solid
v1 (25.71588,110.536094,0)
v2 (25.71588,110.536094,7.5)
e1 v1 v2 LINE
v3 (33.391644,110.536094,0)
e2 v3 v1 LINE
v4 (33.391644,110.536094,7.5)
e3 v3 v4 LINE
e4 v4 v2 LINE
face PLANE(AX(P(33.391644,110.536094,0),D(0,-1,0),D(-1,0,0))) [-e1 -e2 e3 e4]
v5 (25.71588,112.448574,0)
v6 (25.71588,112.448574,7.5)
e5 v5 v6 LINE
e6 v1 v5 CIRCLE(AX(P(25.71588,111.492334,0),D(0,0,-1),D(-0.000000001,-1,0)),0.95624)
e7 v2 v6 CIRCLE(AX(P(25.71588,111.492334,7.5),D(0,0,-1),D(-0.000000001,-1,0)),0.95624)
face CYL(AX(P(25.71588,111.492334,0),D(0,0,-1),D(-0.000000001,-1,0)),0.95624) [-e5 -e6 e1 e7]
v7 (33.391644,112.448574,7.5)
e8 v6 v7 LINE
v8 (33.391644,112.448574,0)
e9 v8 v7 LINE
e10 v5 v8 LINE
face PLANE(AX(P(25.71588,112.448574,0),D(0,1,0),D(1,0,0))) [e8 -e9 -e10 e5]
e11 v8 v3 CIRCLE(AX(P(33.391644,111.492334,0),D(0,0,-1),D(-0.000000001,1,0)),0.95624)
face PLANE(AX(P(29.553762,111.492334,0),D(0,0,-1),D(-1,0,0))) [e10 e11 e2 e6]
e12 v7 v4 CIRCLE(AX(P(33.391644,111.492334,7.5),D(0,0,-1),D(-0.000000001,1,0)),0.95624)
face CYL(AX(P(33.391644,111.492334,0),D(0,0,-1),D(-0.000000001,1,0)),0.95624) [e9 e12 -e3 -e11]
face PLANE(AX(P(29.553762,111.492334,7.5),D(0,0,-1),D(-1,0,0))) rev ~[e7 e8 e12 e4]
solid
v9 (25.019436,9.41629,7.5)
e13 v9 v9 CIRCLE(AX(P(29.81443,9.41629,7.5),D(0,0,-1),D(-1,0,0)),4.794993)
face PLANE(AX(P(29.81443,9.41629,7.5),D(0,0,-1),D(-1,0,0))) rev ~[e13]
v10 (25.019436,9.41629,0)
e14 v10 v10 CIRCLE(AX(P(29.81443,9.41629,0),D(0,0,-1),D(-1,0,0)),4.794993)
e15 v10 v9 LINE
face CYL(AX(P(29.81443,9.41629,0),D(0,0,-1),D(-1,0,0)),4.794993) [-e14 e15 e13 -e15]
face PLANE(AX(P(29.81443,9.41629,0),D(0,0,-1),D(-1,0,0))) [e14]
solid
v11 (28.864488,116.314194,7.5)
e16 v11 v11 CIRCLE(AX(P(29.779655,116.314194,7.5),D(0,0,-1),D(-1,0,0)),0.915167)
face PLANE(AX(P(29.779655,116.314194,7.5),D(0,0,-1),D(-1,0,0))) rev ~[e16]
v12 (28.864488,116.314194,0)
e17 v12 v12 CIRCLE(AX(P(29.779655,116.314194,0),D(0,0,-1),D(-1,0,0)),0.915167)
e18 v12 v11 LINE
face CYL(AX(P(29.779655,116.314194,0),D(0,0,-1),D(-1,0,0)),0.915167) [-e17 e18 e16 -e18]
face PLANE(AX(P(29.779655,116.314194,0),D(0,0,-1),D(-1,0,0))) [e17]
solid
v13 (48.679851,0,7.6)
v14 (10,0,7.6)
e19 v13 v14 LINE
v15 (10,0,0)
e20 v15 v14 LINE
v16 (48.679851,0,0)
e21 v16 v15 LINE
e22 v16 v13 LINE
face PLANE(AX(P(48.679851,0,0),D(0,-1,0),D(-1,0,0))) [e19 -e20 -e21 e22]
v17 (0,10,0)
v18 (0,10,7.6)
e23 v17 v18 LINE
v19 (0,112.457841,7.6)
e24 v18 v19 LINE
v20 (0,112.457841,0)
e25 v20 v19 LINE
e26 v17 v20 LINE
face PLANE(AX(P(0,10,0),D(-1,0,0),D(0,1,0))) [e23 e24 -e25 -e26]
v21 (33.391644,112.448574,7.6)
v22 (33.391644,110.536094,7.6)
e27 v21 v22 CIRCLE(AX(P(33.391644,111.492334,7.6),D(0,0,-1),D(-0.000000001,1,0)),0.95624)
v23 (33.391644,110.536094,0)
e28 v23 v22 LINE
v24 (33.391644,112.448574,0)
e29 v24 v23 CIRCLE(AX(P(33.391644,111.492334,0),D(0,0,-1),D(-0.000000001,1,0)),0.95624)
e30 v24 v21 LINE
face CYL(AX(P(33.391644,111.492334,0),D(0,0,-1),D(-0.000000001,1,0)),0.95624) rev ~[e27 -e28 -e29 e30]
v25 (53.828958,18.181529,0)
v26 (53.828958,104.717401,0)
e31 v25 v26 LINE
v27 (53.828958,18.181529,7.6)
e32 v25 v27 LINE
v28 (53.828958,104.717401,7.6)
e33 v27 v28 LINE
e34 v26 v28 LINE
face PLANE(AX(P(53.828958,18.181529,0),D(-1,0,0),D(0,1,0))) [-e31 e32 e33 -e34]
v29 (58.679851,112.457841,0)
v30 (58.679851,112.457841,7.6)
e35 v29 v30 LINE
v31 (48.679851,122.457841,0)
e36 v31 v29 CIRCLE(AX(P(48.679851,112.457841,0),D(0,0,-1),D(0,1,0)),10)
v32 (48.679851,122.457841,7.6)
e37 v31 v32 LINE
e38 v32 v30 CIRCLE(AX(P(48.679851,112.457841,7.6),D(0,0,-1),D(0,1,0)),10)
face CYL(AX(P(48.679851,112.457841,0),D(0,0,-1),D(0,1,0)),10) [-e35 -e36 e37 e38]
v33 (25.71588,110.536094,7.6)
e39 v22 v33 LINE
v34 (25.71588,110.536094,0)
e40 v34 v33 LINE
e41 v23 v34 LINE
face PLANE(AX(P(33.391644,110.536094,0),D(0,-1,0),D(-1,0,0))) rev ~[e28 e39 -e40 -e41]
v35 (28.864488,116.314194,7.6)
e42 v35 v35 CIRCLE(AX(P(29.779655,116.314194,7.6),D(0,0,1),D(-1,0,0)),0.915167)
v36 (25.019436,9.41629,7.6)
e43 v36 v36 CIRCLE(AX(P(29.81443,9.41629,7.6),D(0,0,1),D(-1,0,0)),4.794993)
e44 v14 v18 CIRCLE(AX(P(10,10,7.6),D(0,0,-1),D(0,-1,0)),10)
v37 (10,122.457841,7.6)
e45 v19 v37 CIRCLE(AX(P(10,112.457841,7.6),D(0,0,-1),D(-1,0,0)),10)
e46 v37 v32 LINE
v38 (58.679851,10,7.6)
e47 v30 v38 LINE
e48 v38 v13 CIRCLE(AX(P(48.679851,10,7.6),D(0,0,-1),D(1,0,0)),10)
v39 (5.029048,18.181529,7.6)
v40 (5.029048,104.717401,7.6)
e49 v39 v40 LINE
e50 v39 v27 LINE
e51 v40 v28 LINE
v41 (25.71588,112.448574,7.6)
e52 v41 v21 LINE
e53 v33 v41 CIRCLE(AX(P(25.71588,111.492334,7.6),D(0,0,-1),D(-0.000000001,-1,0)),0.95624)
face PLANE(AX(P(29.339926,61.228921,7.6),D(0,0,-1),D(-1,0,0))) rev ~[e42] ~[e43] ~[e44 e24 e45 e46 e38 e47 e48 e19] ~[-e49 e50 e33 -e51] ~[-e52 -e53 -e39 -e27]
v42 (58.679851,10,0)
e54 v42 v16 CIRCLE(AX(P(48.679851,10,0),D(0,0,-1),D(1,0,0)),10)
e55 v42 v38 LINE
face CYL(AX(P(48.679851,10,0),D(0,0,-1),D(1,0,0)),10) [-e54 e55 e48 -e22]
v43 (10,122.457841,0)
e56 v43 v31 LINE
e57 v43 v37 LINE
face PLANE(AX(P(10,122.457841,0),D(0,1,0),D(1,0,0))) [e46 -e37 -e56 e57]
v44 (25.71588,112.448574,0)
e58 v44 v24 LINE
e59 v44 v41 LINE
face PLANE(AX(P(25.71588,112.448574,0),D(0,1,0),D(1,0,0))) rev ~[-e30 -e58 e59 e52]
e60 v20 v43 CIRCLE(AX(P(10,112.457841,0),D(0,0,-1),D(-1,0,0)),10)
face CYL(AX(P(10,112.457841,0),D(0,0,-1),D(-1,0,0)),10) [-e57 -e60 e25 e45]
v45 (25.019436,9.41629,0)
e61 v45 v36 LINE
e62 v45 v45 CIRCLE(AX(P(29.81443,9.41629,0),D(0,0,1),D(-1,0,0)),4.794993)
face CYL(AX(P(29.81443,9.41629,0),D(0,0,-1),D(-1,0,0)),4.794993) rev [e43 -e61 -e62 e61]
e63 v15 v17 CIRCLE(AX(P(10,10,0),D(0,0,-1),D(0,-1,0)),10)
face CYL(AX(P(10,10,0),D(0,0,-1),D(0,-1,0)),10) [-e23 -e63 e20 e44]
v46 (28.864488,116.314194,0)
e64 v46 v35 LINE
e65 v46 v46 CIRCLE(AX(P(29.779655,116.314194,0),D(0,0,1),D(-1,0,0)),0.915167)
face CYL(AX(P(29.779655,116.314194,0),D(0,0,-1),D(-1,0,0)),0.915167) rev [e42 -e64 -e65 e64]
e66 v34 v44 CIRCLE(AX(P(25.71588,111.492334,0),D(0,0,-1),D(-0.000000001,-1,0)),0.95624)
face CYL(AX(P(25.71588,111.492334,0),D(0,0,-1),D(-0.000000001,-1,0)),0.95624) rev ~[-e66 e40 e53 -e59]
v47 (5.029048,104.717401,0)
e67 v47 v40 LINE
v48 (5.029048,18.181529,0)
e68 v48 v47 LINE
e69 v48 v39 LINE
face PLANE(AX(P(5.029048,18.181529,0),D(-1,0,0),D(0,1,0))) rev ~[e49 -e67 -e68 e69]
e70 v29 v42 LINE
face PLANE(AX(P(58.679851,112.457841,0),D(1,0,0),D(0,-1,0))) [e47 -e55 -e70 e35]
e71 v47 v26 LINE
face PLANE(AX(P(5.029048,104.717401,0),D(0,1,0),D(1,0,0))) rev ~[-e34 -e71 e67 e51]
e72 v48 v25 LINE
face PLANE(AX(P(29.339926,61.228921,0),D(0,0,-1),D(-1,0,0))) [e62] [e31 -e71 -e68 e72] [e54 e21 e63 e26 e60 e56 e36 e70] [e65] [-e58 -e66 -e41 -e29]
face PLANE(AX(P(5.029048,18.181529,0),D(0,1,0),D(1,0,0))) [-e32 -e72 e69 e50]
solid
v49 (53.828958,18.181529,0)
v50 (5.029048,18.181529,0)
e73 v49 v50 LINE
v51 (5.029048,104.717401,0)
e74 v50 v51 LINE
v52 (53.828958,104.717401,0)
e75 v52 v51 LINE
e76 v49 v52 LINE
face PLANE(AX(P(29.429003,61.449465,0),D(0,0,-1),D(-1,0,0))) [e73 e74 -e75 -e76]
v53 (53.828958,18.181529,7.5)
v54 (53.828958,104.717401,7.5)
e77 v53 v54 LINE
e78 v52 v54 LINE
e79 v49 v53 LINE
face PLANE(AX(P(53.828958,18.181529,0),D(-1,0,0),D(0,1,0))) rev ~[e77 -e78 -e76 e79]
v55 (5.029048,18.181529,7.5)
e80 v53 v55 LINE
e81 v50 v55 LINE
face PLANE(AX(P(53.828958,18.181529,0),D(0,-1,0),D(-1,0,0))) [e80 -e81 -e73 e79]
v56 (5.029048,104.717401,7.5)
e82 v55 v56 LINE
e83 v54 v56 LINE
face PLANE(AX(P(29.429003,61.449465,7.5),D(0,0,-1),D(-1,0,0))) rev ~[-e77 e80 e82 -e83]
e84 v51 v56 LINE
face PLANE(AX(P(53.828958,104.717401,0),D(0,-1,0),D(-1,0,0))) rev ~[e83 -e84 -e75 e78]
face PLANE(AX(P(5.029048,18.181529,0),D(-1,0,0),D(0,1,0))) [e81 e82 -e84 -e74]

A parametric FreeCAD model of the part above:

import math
import FreeCAD as App
import Part
import Sketcher
Q = App.Units.Quantity


def add_polygon(sketch, points):
    """Adds a closed chain of lines whose ends are joined by coincident constraints."""
    first, n = sketch.GeometryCount, len(points)
    for a, b in zip(points, points[1:] + points[:1]):
        sketch.addGeometry(Part.LineSegment(App.Vector(*a, 0), App.Vector(*b, 0)), False)
    for i in range(n):
        sketch.addConstraint(Sketcher.Constraint("Coincident", first + i, 2, first + (i + 1) % n, 1))

doc = App.newDocument("Part")
params = doc.addObject("Spreadsheet::Sheet", "Params")
for row, (alias, value) in enumerate([
    ("sketch1_radius", "10 mm"),
    ("pad1_length", "7.6 mm"),
    ("pad2_length", "7.5 mm"),
    ("pad3_length", "7.5 mm"),
    ("pad4_length", "7.5 mm"),
    ("pad5_length", "7.5 mm"),
], start=1):
    params.set(f"A{row}", alias)
    params.set(f"B{row}", "=" + value)
    params.setAlias(f"B{row}", alias)

body = doc.addObject("PartDesign::Body", "Body")

sketch1 = body.newObject("Sketcher::SketchObject", "Sketch")
sketch1.AttachmentSupport = (doc.getObject("XY_Plane"), [""])
sketch1.MapMode = "FlatFace"
sketch1.addGeometry(Part.LineSegment(App.Vector(48.679851, 122.457841, 0), App.Vector(10, 122.457841, 0)), False)
sketch1.addGeometry(Part.ArcOfCircle(Part.Circle(App.Vector(10, 112.457841, 0), App.Vector(0, 0, 1), 10), math.radians(90), math.radians(180)), False)
sketch1.addGeometry(Part.LineSegment(App.Vector(0, 112.457841, 0), App.Vector(0, 10, 0)), False)
sketch1.addGeometry(Part.ArcOfCircle(Part.Circle(App.Vector(10, 10, 0), App.Vector(0, 0, 1), 10), math.radians(180), math.radians(270)), False)
sketch1.addGeometry(Part.LineSegment(App.Vector(10, 0, 0), App.Vector(48.679851, 0, 0)), False)
sketch1.addGeometry(Part.ArcOfCircle(Part.Circle(App.Vector(48.679851, 10, 0), App.Vector(0, 0, 1), 10), math.radians(-90), math.radians(0)), False)
sketch1.addGeometry(Part.LineSegment(App.Vector(58.679851, 10, 0), App.Vector(58.679851, 112.457841, 0)), False)
sketch1.addGeometry(Part.ArcOfCircle(Part.Circle(App.Vector(48.679851, 112.457841, 0), App.Vector(0, 0, 1), 10), math.radians(0), math.radians(90)), False)
sketch1.addGeometry(Part.Circle(App.Vector(29.81443, 9.41629, 0), App.Vector(0, 0, 1), 4.794993), False)
sketch1.addGeometry(Part.LineSegment(App.Vector(25.71588, 112.448574, 0), App.Vector(33.391644, 112.448574, 0)), False)
sketch1.addGeometry(Part.ArcOfCircle(Part.Circle(App.Vector(33.391644, 111.492334, 0), App.Vector(0, 0, 1), 0.95624), math.radians(-90), math.radians(90)), False)
sketch1.addGeometry(Part.LineSegment(App.Vector(33.391644, 110.536094, 0), App.Vector(25.71588, 110.536094, 0)), False)
sketch1.addGeometry(Part.ArcOfCircle(Part.Circle(App.Vector(25.71588, 111.492334, 0), App.Vector(0, 0, 1), 0.95624), math.radians(90), math.radians(270)), False)
sketch1.addGeometry(Part.Circle(App.Vector(29.779655, 116.314194, 0), App.Vector(0, 0, 1), 0.915167), False)
add_polygon(sketch1, [(5.029048, 18.181529), (5.029048, 104.717401), (53.828958, 104.717401), (53.828958, 18.181529)])
sketch1.addConstraint([
    Sketcher.Constraint("Tangent", 0, 2, 1, 1),
    Sketcher.Constraint("Tangent", 1, 2, 2, 1),
    Sketcher.Constraint("Tangent", 2, 2, 3, 1),
    Sketcher.Constraint("Tangent", 3, 2, 4, 1),
    Sketcher.Constraint("Tangent", 4, 2, 5, 1),
    Sketcher.Constraint("Tangent", 5, 2, 6, 1),
    Sketcher.Constraint("Tangent", 6, 2, 7, 1),
    Sketcher.Constraint("Tangent", 7, 2, 0, 1),
    Sketcher.Constraint("Tangent", 9, 2, 10, 2),
    Sketcher.Constraint("Tangent", 10, 1, 11, 1),
    Sketcher.Constraint("Tangent", 11, 2, 12, 2),
    Sketcher.Constraint("Tangent", 12, 1, 9, 1),
    Sketcher.Constraint("Horizontal", 0),
    Sketcher.Constraint("Vertical", 2),
    Sketcher.Constraint("Horizontal", 4),
    Sketcher.Constraint("Vertical", 6),
    Sketcher.Constraint("Horizontal", 9),
    Sketcher.Constraint("Horizontal", 11),
    Sketcher.Constraint("Vertical", 14),
    Sketcher.Constraint("Horizontal", 15),
    Sketcher.Constraint("Vertical", 16),
    Sketcher.Constraint("Horizontal", 17),
    Sketcher.Constraint("Equal", 1, 3),
    Sketcher.Constraint("Equal", 3, 5),
    Sketcher.Constraint("Equal", 5, 7),
    Sketcher.Constraint("PointOnObject", 1, 2, -2),
    Sketcher.Constraint("PointOnObject", 3, 2, -1),
    Sketcher.Constraint("Radius", 1, Q("10 mm")),
    Sketcher.Constraint("Radius", 10, Q("0.95624 mm")),
    Sketcher.Constraint("Diameter", 8, Q("9.589987 mm")),
    Sketcher.Constraint("Diameter", 13, Q("1.830334 mm")),
    Sketcher.Constraint("DistanceX", 0, 2, 0, 1, Q("38.679851 mm")),
    Sketcher.Constraint("DistanceX", 15, 1, 15, 2, Q("48.79991 mm")),
    Sketcher.Constraint("DistanceY", 2, 2, 2, 1, Q("102.457841 mm")),
    Sketcher.Constraint("DistanceY", 14, 1, 14, 2, Q("86.535872 mm")),
    Sketcher.Constraint("DistanceY", -1, 1, 14, 2, Q("104.717401 mm")),
    Sketcher.Constraint("DistanceY", 10, 1, 13, 3, Q("5.7781 mm")),
    Sketcher.Constraint("DistanceX", 9, 1, 9, 2, Q("7.675764 mm")),
    Sketcher.Constraint("DistanceX", -1, 1, 8, 3, Q("29.81443 mm")),
    Sketcher.Constraint("DistanceY", -1, 1, 8, 3, Q("9.41629 mm")),
    Sketcher.Constraint("DistanceX", -1, 1, 12, 3, Q("25.71588 mm")),
    Sketcher.Constraint("DistanceX", -1, 1, 14, 2, Q("5.029048 mm")),
    Sketcher.Constraint("DistanceX", 13, 3, 10, 3, Q("3.611989 mm")),
    Sketcher.Constraint("DistanceY", -1, 1, 10, 3, Q("111.492334 mm")),
])
sketch1.setExpression("Constraints[31]", "Params.sketch1_radius")
pad1 = body.newObject("PartDesign::Pad", "Pad")
pad1.Profile = sketch1
pad1.setExpression("Length", "Params.pad1_length")
body2 = doc.addObject("PartDesign::Body", "Body001")

sketch2 = body2.newObject("Sketcher::SketchObject", "Sketch001")
sketch2.AttachmentSupport = (doc.getObject("XY_Plane001"), [""])
sketch2.MapMode = "FlatFace"
sketch2.addGeometry(Part.Circle(App.Vector(29.779655, 116.314194, 0), App.Vector(0, 0, 1), 0.915167), False)
sketch2.addConstraint([
    Sketcher.Constraint("Diameter", 0, Q("1.830334 mm")),
    Sketcher.Constraint("DistanceX", -1, 1, 0, 3, Q("29.779655 mm")),
    Sketcher.Constraint("DistanceY", -1, 1, 0, 3, Q("116.314194 mm")),
])
pad2 = body2.newObject("PartDesign::Pad", "Pad001")
pad2.Profile = sketch2
pad2.setExpression("Length", "Params.pad2_length")
body3 = doc.addObject("PartDesign::Body", "Body002")

sketch3 = body3.newObject("Sketcher::SketchObject", "Sketch002")
sketch3.AttachmentSupport = (doc.getObject("XY_Plane002"), [""])
sketch3.MapMode = "FlatFace"
sketch3.addGeometry(Part.Circle(App.Vector(29.81443, 9.41629, 0), App.Vector(0, 0, 1), 4.794993), False)
sketch3.addConstraint([
    Sketcher.Constraint("Diameter", 0, Q("9.589987 mm")),
    Sketcher.Constraint("DistanceX", -1, 1, 0, 3, Q("29.81443 mm")),
    Sketcher.Constraint("DistanceY", -1, 1, 0, 3, Q("9.41629 mm")),
])
pad3 = body3.newObject("PartDesign::Pad", "Pad002")
pad3.Profile = sketch3
pad3.setExpression("Length", "Params.pad3_length")
body4 = doc.addObject("PartDesign::Body", "Body003")

sketch4 = body4.newObject("Sketcher::SketchObject", "Sketch003")
sketch4.AttachmentSupport = (doc.getObject("XY_Plane003"), [""])
sketch4.MapMode = "FlatFace"
sketch4.addGeometry([
    Part.LineSegment(App.Vector(25.71588, 112.448574, 0), App.Vector(33.391644, 112.448574, 0)),
    Part.ArcOfCircle(Part.Circle(App.Vector(33.391644, 111.492334, 0), App.Vector(0, 0, 1), 0.95624), math.radians(-90), math.radians(90)),
    Part.LineSegment(App.Vector(33.391644, 110.536094, 0), App.Vector(25.71588, 110.536094, 0)),
    Part.ArcOfCircle(Part.Circle(App.Vector(25.71588, 111.492334, 0), App.Vector(0, 0, 1), 0.95624), math.radians(90), math.radians(270)),
], False)
sketch4.addConstraint([
    Sketcher.Constraint("Tangent", 0, 2, 1, 2),
    Sketcher.Constraint("Tangent", 1, 1, 2, 1),
    Sketcher.Constraint("Tangent", 2, 2, 3, 2),
    Sketcher.Constraint("Tangent", 3, 1, 0, 1),
    Sketcher.Constraint("Horizontal", 0),
    Sketcher.Constraint("Horizontal", 2),
    Sketcher.Constraint("Radius", 1, Q("0.95624 mm")),
    Sketcher.Constraint("DistanceX", 0, 1, 0, 2, Q("7.675764 mm")),
    Sketcher.Constraint("DistanceX", -1, 1, 3, 3, Q("25.71588 mm")),
    Sketcher.Constraint("DistanceY", -1, 1, 1, 3, Q("111.492334 mm")),
])
pad4 = body4.newObject("PartDesign::Pad", "Pad003")
pad4.Profile = sketch4
pad4.setExpression("Length", "Params.pad4_length")
body5 = doc.addObject("PartDesign::Body", "Body004")

sketch5 = body5.newObject("Sketcher::SketchObject", "Sketch004")
sketch5.AttachmentSupport = (doc.getObject("XY_Plane004"), [""])
sketch5.MapMode = "FlatFace"
add_polygon(sketch5, [(53.828958, 104.717401), (53.828958, 18.181529), (5.029048, 18.181529), (5.029048, 104.717401)])
sketch5.addConstraint([
    Sketcher.Constraint("Vertical", 0),
    Sketcher.Constraint("Horizontal", 1),
    Sketcher.Constraint("Vertical", 2),
    Sketcher.Constraint("Horizontal", 3),
    Sketcher.Constraint("DistanceX", 1, 2, 1, 1, Q("48.79991 mm")),
    Sketcher.Constraint("DistanceY", 0, 2, 0, 1, Q("86.535872 mm")),
    Sketcher.Constraint("DistanceY", -1, 1, 2, 2, Q("104.717401 mm")),
    Sketcher.Constraint("DistanceX", -1, 1, 1, 2, Q("5.029048 mm")),
])
pad5 = body5.newObject("PartDesign::Pad", "Pad004")
pad5.Profile = sketch5
pad5.setExpression("Length", "Params.pad5_length")

doc.recompute()
